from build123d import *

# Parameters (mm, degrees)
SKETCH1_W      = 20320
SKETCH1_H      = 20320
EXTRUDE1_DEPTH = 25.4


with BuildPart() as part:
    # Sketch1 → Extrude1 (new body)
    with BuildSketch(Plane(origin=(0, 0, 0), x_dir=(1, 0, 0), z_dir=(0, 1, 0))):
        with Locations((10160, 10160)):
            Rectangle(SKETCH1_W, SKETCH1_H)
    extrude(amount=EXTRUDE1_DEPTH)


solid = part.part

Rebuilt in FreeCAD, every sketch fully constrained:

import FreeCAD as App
import Part
import Sketcher
from FreeCAD import Vector
Q = App.Units.Quantity

doc = App.newDocument("Part")
body = doc.addObject("PartDesign::Body", "Body")

sketch1 = body.newObject("Sketcher::SketchObject", "Sketch")
sketch1.AttachmentSupport = (doc.getObject("XZ_Plane"), [""])
sketch1.MapMode = "FlatFace"
sketch1.addGeometry([
    Part.LineSegment(Vector(0, -20320, 0), Vector(0, 0, 0)),
    Part.LineSegment(Vector(0, 0, 0), Vector(20320, 0, 0)),
    Part.LineSegment(Vector(20320, 0, 0), Vector(20320, -20320, 0)),
    Part.LineSegment(Vector(20320, -20320, 0), Vector(0, -20320, 0)),
], False)
sketch1.addConstraint([
    Sketcher.Constraint("Coincident", 0, 2, 1, 1),
    Sketcher.Constraint("Coincident", 1, 2, 2, 1),
    Sketcher.Constraint("Coincident", 2, 2, 3, 1),
    Sketcher.Constraint("Coincident", 3, 2, 0, 1),
    Sketcher.Constraint("Vertical", 0),
    Sketcher.Constraint("Horizontal", 1),
    Sketcher.Constraint("Vertical", 2),
    Sketcher.Constraint("Horizontal", 3),
    Sketcher.Constraint("Coincident", 0, 2, -1, 1),
    Sketcher.Constraint("Equal", 3, 0),
    Sketcher.Constraint("DistanceX", 1, 1, 1, 2, Q("800 in")),
])
pad1 = body.newObject("PartDesign::Pad", "Pad")
pad1.Profile = sketch1
pad1.Length = Q("1 in")
pad1.Reversed = True

doc.recompute()
